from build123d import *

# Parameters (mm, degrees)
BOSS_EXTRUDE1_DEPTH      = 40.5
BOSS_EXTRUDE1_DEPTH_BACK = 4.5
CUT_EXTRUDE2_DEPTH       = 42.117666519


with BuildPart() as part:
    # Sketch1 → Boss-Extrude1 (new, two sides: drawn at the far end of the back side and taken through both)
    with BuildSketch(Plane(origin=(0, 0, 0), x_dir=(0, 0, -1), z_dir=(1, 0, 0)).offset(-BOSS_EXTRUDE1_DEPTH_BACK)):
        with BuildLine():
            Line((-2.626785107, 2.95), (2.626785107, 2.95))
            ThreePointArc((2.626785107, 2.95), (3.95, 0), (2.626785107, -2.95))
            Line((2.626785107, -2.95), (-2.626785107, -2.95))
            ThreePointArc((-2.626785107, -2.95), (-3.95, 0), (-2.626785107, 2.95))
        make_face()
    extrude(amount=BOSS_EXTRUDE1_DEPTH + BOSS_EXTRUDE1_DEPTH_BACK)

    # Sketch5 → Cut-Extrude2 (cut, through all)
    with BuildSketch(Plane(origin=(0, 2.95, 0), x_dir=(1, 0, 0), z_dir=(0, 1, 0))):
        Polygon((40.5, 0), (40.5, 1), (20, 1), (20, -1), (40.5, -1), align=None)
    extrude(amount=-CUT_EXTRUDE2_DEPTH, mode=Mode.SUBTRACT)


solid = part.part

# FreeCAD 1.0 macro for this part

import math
import FreeCAD as App
import Part
import Sketcher


def add_polygon(sketch, points):
    """Adds a closed chain of lines whose ends are joined by coincident constraints."""
    first, n = sketch.GeometryCount, len(points)
    for a, b in zip(points, points[1:] + points[:1]):
        sketch.addGeometry(Part.LineSegment(App.Vector(*a, 0), App.Vector(*b, 0)), False)
    for i in range(n):
        sketch.addConstraint(Sketcher.Constraint("Coincident", first + i, 2, first + (i + 1) % n, 1))

doc = App.newDocument("Part")
body = doc.addObject("PartDesign::Body", "Body")

# Sketch on YZ plane
sketch1 = doc.addObject("Sketcher::SketchObject", "Sketch")
body.addObject(sketch1)
sketch1.AttachmentSupport = (doc.YZ_Plane, [""])
sketch1.MapMode = "FlatFace"
sketch1.addGeometry([
    Part.LineSegment(App.Vector(3, -2.6, 0), App.Vector(3, 2.6, 0)),
    Part.ArcOfCircle(Part.Circle(App.Vector(0, 0, 0), App.Vector(0, 0, 1), 3.9), math.radians(42), math.radians(138)),
    Part.LineSegment(App.Vector(-3, 2.6, 0), App.Vector(-3, -2.6, 0)),
    Part.ArcOfCircle(Part.Circle(App.Vector(0, 0, 0), App.Vector(0, 0, 1), 3.9), math.radians(-138), math.radians(-42)),
], False)
sketch1.addConstraint([
    Sketcher.Constraint("Coincident", 0, 2, 1, 1),
    Sketcher.Constraint("Coincident", 1, 2, 2, 1),
    Sketcher.Constraint("Coincident", 2, 2, 3, 1),
    Sketcher.Constraint("Coincident", 3, 2, 0, 1),
    Sketcher.Constraint("Vertical", 0),
    Sketcher.Constraint("Vertical", 2),
    Sketcher.Constraint("Coincident", 1, 3, -1, 1),
    Sketcher.Constraint("Coincident", 3, 3, -1, 1),
    Sketcher.Constraint("Equal", 1, 3),
    Sketcher.Constraint("Horizontal", 0, 2, 1, 2),
    Sketcher.Constraint("Radius", 1, 3.95),
    Sketcher.Constraint("DistanceX", 1, 2, 0, 2, 5.9),
])
pad1 = doc.addObject("PartDesign::Pad", "Pad")
body.addObject(pad1)
pad1.Profile = sketch1
pad1.Type = "TwoLengths"
pad1.Length = 40.5
pad1.Length2 = 4.5

# Sketch on XZ plane
sketch2 = doc.addObject("Sketcher::SketchObject", "Sketch001")
body.addObject(sketch2)
sketch2.AttachmentSupport = (doc.XZ_Plane, [""])
sketch2.MapMode = "FlatFace"
sketch2.AttachmentOffset = App.Placement(App.Vector(0, 0, -2.95), App.Rotation())
add_polygon(sketch2, [(40.5, -1), (20, -1), (20, 1), (40.5, 1)])  # lines 0-3
sketch2.addConstraint([
    Sketcher.Constraint("Horizontal", 0),
    Sketcher.Constraint("Vertical", 1),
    Sketcher.Constraint("Horizontal", 2),
    Sketcher.Constraint("Vertical", 3),
    Sketcher.Constraint("DistanceY", 1, 1, 1, 2, 2.0),
    Sketcher.Constraint("DistanceX", 0, 2, 0, 1, 20.5),
    Sketcher.Constraint("DistanceX", -1, 1, 0, 2, 20.0),
    Sketcher.Constraint("DistanceY", 0, 2, -1, 1, 1.0),
])
pocket1 = doc.addObject("PartDesign::Pocket", "Pocket")
body.addObject(pocket1)
pocket1.Profile = sketch2
pocket1.Type = "ThroughAll"
pocket1.Reversed = True

doc.recompute()
